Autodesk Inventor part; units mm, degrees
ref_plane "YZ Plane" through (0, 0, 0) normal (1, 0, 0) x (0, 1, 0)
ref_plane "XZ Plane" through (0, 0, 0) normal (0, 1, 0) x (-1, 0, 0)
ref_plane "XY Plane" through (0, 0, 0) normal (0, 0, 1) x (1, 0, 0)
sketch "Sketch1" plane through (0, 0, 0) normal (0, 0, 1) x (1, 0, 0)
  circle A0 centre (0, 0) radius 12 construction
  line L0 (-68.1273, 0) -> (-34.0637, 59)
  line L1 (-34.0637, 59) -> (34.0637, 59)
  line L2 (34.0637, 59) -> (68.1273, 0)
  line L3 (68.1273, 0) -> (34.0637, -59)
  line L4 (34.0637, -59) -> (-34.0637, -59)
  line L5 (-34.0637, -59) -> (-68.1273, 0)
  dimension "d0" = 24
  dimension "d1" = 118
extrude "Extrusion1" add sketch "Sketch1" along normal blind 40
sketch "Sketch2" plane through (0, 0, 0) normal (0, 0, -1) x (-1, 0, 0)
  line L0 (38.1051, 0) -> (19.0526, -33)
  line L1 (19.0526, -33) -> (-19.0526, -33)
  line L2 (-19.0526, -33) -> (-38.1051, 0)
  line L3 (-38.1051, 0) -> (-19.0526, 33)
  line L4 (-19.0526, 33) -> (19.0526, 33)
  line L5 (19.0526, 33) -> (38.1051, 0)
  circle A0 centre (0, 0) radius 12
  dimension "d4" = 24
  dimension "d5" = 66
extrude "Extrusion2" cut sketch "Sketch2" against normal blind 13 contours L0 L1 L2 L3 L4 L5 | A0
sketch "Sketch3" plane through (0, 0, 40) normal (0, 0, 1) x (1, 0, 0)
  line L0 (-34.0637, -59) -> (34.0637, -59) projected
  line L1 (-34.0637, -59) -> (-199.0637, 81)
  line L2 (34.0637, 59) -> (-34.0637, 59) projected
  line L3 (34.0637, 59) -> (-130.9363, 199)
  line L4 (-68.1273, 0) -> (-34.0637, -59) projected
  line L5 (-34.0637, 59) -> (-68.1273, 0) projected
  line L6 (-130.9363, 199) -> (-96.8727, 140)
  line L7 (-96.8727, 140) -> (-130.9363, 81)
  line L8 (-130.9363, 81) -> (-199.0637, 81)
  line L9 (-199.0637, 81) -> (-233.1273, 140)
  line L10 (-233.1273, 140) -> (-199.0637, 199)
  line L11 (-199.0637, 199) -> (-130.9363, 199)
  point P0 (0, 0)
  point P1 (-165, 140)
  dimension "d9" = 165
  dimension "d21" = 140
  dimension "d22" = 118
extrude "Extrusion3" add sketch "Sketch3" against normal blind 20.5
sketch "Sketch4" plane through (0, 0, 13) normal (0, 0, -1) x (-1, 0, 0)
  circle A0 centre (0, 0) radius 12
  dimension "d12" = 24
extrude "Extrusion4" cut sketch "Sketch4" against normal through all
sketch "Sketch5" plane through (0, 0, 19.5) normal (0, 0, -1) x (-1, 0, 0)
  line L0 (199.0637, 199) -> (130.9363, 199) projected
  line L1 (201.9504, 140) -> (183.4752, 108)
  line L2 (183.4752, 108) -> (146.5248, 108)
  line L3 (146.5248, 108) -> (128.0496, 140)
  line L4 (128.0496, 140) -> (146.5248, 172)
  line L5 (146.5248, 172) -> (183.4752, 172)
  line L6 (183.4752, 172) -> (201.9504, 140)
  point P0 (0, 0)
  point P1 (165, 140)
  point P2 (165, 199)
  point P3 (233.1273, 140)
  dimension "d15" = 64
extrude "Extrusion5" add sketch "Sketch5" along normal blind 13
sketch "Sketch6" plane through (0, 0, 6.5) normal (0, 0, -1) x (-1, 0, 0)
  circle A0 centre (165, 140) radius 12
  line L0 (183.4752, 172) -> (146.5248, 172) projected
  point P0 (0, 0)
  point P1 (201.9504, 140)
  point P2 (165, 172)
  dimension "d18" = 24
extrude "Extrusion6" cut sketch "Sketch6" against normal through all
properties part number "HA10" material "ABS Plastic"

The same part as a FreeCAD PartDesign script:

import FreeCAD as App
import Part
import Sketcher

V = App.Vector
Q = App.Units.Quantity


def add_polygon(sketch, points):
    """Adds a closed chain of lines whose ends are joined by coincident constraints."""
    first, n = sketch.GeometryCount, len(points)
    for a, b in zip(points, points[1:] + points[:1]):
        sketch.addGeometry(Part.LineSegment(App.Vector(*a, 0), App.Vector(*b, 0)), False)
    for i in range(n):
        sketch.addConstraint(Sketcher.Constraint("Coincident", first + i, 2, first + (i + 1) % n, 1))

doc = App.newDocument("Part")
body = doc.addObject("PartDesign::Body", "Body")

sketch1 = body.newObject("Sketcher::SketchObject", "Sketch")
sketch1.AttachmentSupport = (doc.getObject("XY_Plane"), [""])
sketch1.MapMode = "FlatFace"
add_polygon(sketch1, [(-34, 59), (-68, 0), (-34, -59), (34, -59), (68, 0), (34, 59)])
sketch1.addConstraint([
    Sketcher.Constraint("Horizontal", 2),
    Sketcher.Constraint("Horizontal", 5),
    Sketcher.Constraint("Symmetric", 0, 2, 3, 2, -1, 1),
    Sketcher.Constraint("Symmetric", 1, 2, 4, 2, -1, 1),
    Sketcher.Constraint("PointOnObject", 0, 2, -1),
    Sketcher.Constraint("Parallel", 0, 3),
    Sketcher.Constraint("Vertical", 2, 2, 4, 2),
    Sketcher.Constraint("DistanceY", 2, 2, 4, 2, 118.0),
    Sketcher.Constraint("Angle", 0, Q("-120 deg")),
    Sketcher.Constraint("DistanceX", 2, 1, 2, 2, 68.1274),
])
pad1 = body.newObject("PartDesign::Pad", "Pad")
pad1.Profile = sketch1
pad1.Length = 40

sketch2 = body.newObject("Sketcher::SketchObject", "Sketch001")
sketch2.AttachmentSupport = (doc.getObject("XY_Plane"), [""])
sketch2.MapMode = "FlatFace"
add_polygon(sketch2, [(-19, -33), (-38, 0), (-19, 33), (19, 33), (38, 0), (19, -33)])
sketch2.addConstraint([
    Sketcher.Constraint("Horizontal", 2),
    Sketcher.Constraint("Horizontal", 5),
    Sketcher.Constraint("Symmetric", 0, 2, 3, 2, -1, 1),
    Sketcher.Constraint("Symmetric", 1, 2, 4, 2, -1, 1),
    Sketcher.Constraint("PointOnObject", 0, 2, -1),
    Sketcher.Constraint("Parallel", 0, 3),
    Sketcher.Constraint("Vertical", 2, 2, 4, 2),
    Sketcher.Constraint("DistanceY", 4, 2, 2, 2, 66.0),
    Sketcher.Constraint("Angle", 0, Q("120 deg")),
    Sketcher.Constraint("DistanceX", 2, 1, 2, 2, 38.1052),
])
pocket1 = body.newObject("PartDesign::Pocket", "Pocket")
pocket1.Profile = sketch2
pocket1.Length = 13
pocket1.Reversed = True

sketch3 = body.newObject("Sketcher::SketchObject", "Sketch002")
sketch3.AttachmentSupport = (doc.getObject("XY_Plane"), [""])
sketch3.MapMode = "FlatFace"
sketch3.AttachmentOffset = App.Placement(V(0, 0, 40), App.Rotation())
add_polygon(sketch3, [(-199, 81), (-34, -59), (-68, 0), (-34, 59), (34, 59), (-131, 199), (-199, 199), (-233, 140)])
sketch3.addConstraint([
    Sketcher.Constraint("Horizontal", 3),
    Sketcher.Constraint("Horizontal", 5),
    Sketcher.Constraint("Symmetric", 0, 2, 3, 2, -1, 1),
    Sketcher.Constraint("PointOnObject", 1, 2, -1),
    Sketcher.Constraint("Parallel", 0, 4),
    Sketcher.Constraint("Parallel", 2, 6),
    Sketcher.Constraint("Parallel", 1, 7),
    Sketcher.Constraint("Vertical", 0, 2, 2, 2),
    Sketcher.Constraint("Vertical", 5, 2, 7, 2),
    Sketcher.Constraint("Equal", 3, 5),
    Sketcher.Constraint("DistanceY", -1, 1, 6, 2, 140.0),
    Sketcher.Constraint("DistanceY", 0, 2, 2, 2, 118.0),
    Sketcher.Constraint("DistanceX", 4, 2, 3, 2, 165.0),
    Sketcher.Constraint("Angle", 1, Q("120 deg")),
    Sketcher.Constraint("DistanceX", 3, 1, 3, 2, 68.1274),
])
pad2 = body.newObject("PartDesign::Pad", "Pad001")
pad2.Profile = sketch3
pad2.Length = 20.5
pad2.Reversed = True

sketch4 = body.newObject("Sketcher::SketchObject", "Sketch003")
sketch4.AttachmentSupport = (doc.getObject("XY_Plane"), [""])
sketch4.MapMode = "FlatFace"
sketch4.AttachmentOffset = App.Placement(V(0, 0, 13), App.Rotation())
sketch4.addGeometry(Part.Circle(V(0, 0, 0), V(0, 0, 1), 12), False)
sketch4.addConstraint([
    Sketcher.Constraint("Coincident", 0, 3, -1, 1),
    Sketcher.Constraint("Diameter", 0, 24.0),
])
pocket2 = body.newObject("PartDesign::Pocket", "Pocket001")
pocket2.Profile = sketch4
pocket2.Type = "ThroughAll"
pocket2.Reversed = True

sketch5 = body.newObject("Sketcher::SketchObject", "Sketch004")
sketch5.AttachmentSupport = (doc.getObject("XY_Plane"), [""])
sketch5.MapMode = "FlatFace"
sketch5.AttachmentOffset = App.Placement(V(0, 0, 19.5), App.Rotation())
add_polygon(sketch5, [(-183, 108), (-202, 140), (-183, 172), (-147, 172), (-128, 140), (-147, 108)])
sketch5.addConstraint([
    Sketcher.Constraint("Horizontal", 2),
    Sketcher.Constraint("Horizontal", 5),
    Sketcher.Constraint("Parallel", 0, 3),
    Sketcher.Constraint("Parallel", 1, 4),
    Sketcher.Constraint("Horizontal", 0, 2, 3, 2),
    Sketcher.Constraint("Vertical", 2, 2, 4, 2),
    Sketcher.Constraint("Vertical", 1, 2, 5, 2),
    Sketcher.Constraint("DistanceY", 4, 2, 2, 2, 64.0),
    Sketcher.Constraint("Angle", 0, Q("120 deg")),
    Sketcher.Constraint("DistanceY", -1, 1, 0, 2, 140.0),
    Sketcher.Constraint("DistanceX", 2, 1, 2, 2, 36.9504),
    Sketcher.Constraint("DistanceX", 0, 2, -1, 1, 201.9504),
])
pad3 = body.newObject("PartDesign::Pad", "Pad002")
pad3.Profile = sketch5
pad3.Length = 13
pad3.Reversed = True

sketch6 = body.newObject("Sketcher::SketchObject", "Sketch005")
sketch6.AttachmentSupport = (doc.getObject("XY_Plane"), [""])
sketch6.MapMode = "FlatFace"
sketch6.AttachmentOffset = App.Placement(V(0, 0, 6.5), App.Rotation())
sketch6.addGeometry(Part.Circle(V(-165, 140, 0), V(0, 0, 1), 12), False)
sketch6.addConstraint([
    Sketcher.Constraint("Diameter", 0, 24.0),
    Sketcher.Constraint("DistanceX", 0, 3, -1, 1, 165.0),
    Sketcher.Constraint("DistanceY", -1, 1, 0, 3, 140.0),
])
pocket3 = body.newObject("PartDesign::Pocket", "Pocket002")
pocket3.Profile = sketch6
pocket3.Type = "ThroughAll"
pocket3.Reversed = True

doc.recompute()
